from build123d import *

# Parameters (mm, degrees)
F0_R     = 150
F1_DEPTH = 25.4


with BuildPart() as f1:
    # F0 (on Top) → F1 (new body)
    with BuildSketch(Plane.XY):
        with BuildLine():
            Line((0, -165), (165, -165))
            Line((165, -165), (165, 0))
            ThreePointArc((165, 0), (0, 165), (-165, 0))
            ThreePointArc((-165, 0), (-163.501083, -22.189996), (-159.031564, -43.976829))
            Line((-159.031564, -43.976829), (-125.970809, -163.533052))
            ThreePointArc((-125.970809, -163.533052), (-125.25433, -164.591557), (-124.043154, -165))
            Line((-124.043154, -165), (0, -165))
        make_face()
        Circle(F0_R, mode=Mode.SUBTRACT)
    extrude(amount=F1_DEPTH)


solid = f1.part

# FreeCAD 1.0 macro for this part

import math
import FreeCAD as App
import Part
import Sketcher
Q = App.Units.Quantity

doc = App.newDocument("Part")
body = doc.addObject("PartDesign::Body", "Body")

sketch1 = body.newObject("Sketcher::SketchObject", "Sketch")
sketch1.AttachmentSupport = (doc.getObject("XY_Plane"), [""])
sketch1.MapMode = "FlatFace"
sketch1.addGeometry([
    Part.LineSegment(App.Vector(165, -165, 0), App.Vector(165, 0, 0)),
    Part.ArcOfCircle(Part.Circle(App.Vector(0, 0, 0), App.Vector(0, 0, 1), 165), math.radians(0), math.radians(180)),
    Part.ArcOfCircle(Part.Circle(App.Vector(0, 0, 0), App.Vector(0, 0, 1), 165), math.radians(180), math.radians(195.46)),
    Part.LineSegment(App.Vector(-159, -44, 0), App.Vector(-126, -163.5, 0)),
    Part.ArcOfCircle(Part.Circle(App.Vector(-124, -163, 0), App.Vector(0, 0, 1), 2), math.radians(-165), math.radians(-90)),
    Part.LineSegment(App.Vector(-124, -165, 0), App.Vector(165, -165, 0)),
    Part.Circle(App.Vector(0, 0, 0), App.Vector(0, 0, 1), 150),
], False)
sketch1.addConstraint([
    Sketcher.Constraint("Tangent", 0, 2, 1, 1),
    Sketcher.Constraint("Tangent", 1, 2, 2, 1),
    Sketcher.Constraint("Tangent", 2, 2, 3, 1),
    Sketcher.Constraint("Tangent", 3, 2, 4, 1),
    Sketcher.Constraint("Tangent", 4, 2, 5, 1),
    Sketcher.Constraint("Coincident", 5, 2, 0, 1),
    Sketcher.Constraint("Vertical", 0),
    Sketcher.Constraint("Horizontal", 5),
    Sketcher.Constraint("Coincident", 1, 3, -1, 1),
    Sketcher.Constraint("Coincident", 6, 3, -1, 1),
    Sketcher.Constraint("PointOnObject", 1, 2, -1),
    Sketcher.Constraint("Diameter", 6, Q("300 mm")),
    Sketcher.Constraint("Radius", 1, Q("165 mm")),
    Sketcher.Constraint("DistanceY", 0, 1, 0, 2, Q("165 mm")),
    Sketcher.Constraint("Radius", 2, Q("164.999951 mm")),
    Sketcher.Constraint("Radius", 4, Q("1.999998 mm")),
    Sketcher.Constraint("DistanceX", 5, 1, 5, 2, Q("289.043154 mm")),
])
pad1 = body.newObject("PartDesign::Pad", "Pad")
pad1.Profile = sketch1
pad1.Length = 25.4

doc.recompute()
